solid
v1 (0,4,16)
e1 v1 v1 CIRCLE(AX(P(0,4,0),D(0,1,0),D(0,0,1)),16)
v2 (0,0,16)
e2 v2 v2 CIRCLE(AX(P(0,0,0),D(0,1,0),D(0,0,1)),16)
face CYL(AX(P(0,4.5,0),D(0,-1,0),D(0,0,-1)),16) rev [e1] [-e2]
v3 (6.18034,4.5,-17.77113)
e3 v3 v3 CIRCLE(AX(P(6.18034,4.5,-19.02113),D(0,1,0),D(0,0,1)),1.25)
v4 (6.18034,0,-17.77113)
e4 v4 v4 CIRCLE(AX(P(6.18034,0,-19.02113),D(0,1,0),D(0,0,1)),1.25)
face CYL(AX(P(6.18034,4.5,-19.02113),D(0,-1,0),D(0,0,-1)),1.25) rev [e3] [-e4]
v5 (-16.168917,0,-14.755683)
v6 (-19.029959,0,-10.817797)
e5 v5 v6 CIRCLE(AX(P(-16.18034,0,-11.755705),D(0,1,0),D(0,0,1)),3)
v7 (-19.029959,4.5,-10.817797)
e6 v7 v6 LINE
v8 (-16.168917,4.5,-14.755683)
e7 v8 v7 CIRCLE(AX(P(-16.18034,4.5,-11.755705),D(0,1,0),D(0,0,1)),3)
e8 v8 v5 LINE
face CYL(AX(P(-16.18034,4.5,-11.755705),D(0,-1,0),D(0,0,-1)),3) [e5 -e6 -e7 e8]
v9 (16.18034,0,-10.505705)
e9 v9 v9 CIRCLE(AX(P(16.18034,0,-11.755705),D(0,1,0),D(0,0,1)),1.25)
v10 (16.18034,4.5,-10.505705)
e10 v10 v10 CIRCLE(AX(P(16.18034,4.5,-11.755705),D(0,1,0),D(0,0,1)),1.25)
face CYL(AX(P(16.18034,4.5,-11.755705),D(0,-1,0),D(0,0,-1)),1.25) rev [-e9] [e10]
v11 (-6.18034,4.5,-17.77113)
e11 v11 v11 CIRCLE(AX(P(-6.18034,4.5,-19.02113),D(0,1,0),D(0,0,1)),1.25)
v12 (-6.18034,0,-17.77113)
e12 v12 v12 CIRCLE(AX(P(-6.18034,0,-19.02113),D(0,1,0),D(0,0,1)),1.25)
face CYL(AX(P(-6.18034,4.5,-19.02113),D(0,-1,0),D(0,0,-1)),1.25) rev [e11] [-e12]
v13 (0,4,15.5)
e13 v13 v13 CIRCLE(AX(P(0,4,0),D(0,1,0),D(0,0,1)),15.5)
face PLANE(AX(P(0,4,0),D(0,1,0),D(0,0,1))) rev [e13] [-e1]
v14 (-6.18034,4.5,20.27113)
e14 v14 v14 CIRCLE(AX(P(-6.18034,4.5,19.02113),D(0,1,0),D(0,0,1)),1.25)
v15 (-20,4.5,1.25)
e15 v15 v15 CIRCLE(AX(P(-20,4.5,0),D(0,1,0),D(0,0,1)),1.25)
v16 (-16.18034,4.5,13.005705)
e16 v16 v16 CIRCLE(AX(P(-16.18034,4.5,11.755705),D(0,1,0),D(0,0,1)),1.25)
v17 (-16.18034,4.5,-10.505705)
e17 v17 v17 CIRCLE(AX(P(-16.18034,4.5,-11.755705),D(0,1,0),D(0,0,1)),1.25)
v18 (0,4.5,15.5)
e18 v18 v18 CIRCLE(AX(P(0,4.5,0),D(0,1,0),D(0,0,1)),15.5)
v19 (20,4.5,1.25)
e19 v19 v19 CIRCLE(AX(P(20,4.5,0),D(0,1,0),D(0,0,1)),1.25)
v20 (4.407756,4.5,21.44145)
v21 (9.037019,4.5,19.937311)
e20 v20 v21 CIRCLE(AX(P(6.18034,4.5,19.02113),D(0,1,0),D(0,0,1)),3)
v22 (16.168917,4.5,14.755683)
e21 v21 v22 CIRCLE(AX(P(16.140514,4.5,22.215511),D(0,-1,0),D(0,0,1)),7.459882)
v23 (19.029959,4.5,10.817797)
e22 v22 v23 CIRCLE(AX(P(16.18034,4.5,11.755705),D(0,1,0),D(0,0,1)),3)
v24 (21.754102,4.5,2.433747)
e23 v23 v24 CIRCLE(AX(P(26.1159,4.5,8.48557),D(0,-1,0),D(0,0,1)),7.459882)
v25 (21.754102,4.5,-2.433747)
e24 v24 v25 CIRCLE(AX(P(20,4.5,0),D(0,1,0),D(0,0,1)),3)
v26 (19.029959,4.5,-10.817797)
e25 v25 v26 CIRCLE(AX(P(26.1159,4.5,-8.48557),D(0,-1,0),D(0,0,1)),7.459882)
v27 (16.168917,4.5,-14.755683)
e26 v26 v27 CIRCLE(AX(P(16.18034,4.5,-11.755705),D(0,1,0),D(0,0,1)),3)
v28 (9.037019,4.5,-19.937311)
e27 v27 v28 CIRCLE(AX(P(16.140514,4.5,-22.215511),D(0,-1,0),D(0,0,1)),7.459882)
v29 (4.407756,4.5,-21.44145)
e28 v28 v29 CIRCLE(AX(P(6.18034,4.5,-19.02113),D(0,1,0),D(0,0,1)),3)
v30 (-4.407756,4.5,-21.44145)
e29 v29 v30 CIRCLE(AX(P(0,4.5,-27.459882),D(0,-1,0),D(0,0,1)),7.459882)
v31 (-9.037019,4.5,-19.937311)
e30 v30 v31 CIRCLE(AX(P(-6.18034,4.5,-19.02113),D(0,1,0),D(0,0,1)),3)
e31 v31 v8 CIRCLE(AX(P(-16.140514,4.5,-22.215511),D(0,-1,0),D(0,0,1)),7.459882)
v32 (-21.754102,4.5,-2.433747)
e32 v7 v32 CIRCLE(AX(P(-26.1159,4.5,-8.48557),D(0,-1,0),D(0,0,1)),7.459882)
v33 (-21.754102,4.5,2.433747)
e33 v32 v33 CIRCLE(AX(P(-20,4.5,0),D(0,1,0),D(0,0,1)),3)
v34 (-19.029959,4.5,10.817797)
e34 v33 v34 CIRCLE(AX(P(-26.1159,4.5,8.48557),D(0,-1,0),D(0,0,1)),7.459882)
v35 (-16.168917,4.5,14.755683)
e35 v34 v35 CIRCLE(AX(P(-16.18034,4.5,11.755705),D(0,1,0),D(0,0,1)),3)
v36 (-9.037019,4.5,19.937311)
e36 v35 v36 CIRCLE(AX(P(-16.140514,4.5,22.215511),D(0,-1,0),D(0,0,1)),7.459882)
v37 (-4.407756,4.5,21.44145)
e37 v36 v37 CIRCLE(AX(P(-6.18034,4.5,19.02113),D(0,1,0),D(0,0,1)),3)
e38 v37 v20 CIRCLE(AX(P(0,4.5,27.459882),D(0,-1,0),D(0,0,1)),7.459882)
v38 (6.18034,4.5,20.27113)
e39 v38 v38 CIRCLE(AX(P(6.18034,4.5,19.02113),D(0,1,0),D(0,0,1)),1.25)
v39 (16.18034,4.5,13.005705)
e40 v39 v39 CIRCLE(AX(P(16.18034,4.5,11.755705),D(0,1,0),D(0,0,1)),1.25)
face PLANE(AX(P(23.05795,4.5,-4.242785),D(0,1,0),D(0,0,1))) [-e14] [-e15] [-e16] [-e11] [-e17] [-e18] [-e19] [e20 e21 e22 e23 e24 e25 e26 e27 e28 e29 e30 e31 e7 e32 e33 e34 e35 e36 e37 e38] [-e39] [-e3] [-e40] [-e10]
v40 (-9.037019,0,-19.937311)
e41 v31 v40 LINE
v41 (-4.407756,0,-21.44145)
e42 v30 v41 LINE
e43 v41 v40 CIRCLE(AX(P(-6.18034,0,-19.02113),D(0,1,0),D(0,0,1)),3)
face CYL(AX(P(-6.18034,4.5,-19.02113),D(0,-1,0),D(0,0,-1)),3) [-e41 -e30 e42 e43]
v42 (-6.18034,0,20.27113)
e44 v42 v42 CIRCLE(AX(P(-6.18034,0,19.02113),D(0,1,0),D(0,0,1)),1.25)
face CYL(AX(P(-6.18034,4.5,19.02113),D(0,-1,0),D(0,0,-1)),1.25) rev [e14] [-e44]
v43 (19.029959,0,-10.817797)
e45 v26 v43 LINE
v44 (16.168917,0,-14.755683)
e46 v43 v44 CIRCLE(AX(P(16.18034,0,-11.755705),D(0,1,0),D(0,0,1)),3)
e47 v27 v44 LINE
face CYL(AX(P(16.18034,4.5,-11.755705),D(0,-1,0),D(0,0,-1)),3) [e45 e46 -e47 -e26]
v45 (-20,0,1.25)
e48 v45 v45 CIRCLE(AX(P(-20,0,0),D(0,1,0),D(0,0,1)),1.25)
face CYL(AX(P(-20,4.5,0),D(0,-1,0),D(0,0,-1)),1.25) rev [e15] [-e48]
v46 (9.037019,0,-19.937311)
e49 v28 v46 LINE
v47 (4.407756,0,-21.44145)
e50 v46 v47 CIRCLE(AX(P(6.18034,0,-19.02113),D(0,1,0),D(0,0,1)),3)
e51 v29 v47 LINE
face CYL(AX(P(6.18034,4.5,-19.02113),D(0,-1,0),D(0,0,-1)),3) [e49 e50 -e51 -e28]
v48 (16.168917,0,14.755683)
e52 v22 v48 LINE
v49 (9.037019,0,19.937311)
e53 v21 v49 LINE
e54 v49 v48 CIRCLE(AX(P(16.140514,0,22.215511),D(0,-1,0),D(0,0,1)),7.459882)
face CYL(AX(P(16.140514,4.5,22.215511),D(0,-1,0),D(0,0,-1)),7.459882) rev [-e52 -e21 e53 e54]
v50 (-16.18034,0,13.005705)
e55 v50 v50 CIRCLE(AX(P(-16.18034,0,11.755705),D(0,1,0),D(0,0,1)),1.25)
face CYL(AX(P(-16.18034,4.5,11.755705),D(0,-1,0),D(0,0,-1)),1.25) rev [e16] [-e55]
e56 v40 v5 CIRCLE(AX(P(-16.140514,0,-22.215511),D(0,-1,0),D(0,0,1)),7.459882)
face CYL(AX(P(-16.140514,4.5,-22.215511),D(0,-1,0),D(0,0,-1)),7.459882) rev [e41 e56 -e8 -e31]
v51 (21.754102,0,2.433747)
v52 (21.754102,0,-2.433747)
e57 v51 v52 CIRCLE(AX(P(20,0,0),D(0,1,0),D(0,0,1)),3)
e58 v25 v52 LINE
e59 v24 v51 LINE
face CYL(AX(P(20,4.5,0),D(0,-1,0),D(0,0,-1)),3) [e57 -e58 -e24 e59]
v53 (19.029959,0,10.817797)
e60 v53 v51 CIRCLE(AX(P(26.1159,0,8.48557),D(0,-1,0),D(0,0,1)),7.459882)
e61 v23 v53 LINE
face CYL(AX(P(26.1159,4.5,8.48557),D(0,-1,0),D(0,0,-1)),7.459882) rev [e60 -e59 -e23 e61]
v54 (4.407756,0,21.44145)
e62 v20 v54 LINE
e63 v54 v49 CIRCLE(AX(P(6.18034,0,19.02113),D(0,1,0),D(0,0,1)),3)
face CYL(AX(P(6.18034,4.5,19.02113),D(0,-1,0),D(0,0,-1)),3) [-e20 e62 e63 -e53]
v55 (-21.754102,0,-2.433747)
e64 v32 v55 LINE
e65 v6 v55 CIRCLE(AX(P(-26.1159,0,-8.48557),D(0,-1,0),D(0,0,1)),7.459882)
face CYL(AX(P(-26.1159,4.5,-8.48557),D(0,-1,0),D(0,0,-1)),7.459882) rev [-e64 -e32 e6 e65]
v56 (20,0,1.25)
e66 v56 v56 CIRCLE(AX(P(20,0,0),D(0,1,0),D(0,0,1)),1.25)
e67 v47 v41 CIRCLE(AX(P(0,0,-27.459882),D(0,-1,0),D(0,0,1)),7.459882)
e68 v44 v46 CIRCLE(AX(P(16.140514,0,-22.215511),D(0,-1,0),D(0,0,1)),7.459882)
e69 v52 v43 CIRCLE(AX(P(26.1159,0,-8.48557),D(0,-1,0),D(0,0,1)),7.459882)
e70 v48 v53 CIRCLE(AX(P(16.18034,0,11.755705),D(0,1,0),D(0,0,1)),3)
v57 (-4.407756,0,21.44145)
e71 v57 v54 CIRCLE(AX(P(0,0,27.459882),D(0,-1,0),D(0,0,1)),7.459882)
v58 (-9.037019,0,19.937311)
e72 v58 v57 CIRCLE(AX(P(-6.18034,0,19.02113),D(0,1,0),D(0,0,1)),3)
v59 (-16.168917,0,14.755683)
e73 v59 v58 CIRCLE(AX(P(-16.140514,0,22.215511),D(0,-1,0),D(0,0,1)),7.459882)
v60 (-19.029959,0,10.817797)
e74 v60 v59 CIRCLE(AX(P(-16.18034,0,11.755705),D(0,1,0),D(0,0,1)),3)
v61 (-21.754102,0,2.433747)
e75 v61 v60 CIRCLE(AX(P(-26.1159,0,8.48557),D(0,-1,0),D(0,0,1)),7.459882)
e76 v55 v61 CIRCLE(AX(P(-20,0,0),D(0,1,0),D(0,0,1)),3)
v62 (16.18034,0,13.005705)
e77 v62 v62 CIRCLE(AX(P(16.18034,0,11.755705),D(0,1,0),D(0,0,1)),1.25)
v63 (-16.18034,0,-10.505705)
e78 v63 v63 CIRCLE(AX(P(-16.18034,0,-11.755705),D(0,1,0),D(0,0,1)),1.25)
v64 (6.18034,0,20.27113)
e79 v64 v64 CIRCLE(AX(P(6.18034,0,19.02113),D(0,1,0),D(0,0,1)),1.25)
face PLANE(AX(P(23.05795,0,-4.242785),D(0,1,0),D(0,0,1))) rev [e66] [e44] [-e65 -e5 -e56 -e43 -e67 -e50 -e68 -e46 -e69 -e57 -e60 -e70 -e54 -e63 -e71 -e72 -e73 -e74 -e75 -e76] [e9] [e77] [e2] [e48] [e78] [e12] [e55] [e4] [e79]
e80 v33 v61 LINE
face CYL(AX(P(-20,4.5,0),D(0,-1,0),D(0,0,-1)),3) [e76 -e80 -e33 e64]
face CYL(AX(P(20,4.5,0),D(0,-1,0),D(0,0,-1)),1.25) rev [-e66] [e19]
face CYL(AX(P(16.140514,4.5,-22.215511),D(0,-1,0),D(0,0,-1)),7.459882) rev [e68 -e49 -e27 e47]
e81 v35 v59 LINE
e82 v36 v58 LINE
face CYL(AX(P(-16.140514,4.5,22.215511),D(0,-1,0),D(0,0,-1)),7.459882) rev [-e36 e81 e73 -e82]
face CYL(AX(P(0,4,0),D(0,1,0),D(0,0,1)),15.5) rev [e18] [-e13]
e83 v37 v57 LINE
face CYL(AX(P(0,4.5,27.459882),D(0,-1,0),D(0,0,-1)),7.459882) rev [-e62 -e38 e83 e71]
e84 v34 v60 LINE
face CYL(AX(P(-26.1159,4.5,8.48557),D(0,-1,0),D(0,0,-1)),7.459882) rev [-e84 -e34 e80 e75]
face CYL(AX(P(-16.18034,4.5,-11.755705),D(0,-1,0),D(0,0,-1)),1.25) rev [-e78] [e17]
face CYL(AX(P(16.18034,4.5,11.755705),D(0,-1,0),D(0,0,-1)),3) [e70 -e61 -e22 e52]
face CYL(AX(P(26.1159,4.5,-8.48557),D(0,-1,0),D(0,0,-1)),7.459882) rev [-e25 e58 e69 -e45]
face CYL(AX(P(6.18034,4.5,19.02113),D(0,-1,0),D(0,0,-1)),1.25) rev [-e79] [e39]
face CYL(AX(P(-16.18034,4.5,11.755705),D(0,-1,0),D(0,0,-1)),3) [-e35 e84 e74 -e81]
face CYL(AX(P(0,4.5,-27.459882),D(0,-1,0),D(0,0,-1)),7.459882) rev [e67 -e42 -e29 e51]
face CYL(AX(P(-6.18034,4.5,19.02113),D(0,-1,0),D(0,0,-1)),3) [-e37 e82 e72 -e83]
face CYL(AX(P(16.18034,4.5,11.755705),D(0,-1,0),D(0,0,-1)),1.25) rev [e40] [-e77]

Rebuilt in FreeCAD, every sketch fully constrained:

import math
import FreeCAD as App
import Part
import Sketcher
Q = App.Units.Quantity

doc = App.newDocument("Part")
body = doc.addObject("PartDesign::Body", "Body")

sketch1 = doc.addObject("Sketcher::SketchObject", "Sketch")
body.addObject(sketch1)
sketch1.AttachmentSupport = (doc.XZ_Plane, [""])
sketch1.MapMode = "FlatFace"
sketch1.addGeometry(Part.ArcOfCircle(Part.Circle(App.Vector(20, 0, 0), App.Vector(0, 0, 1), 3), math.radians(-54.218156), math.radians(54.218156)), False)
sketch1.addGeometry(Part.ArcOfCircle(Part.Circle(App.Vector(26.1159, -8.48557, 0), App.Vector(0, 0, 1), 7.459882), math.radians(125.781844), math.radians(198.218156)), False)
sketch1.addGeometry(Part.ArcOfCircle(Part.Circle(App.Vector(16.18034, -11.755705, 0), App.Vector(0, 0, 1), 3), math.radians(-90.218156), math.radians(18.218156)), False)
sketch1.addGeometry(Part.ArcOfCircle(Part.Circle(App.Vector(16.140514, -22.215511, 0), App.Vector(0, 0, 1), 7.459882), math.radians(89.781844), math.radians(162.218156)), False)
sketch1.addGeometry(Part.ArcOfCircle(Part.Circle(App.Vector(6.18034, -19.02113, 0), App.Vector(0, 0, 1), 3), math.radians(-126.218156), math.radians(-17.781844)), False)
sketch1.addGeometry(Part.ArcOfCircle(Part.Circle(App.Vector(0, -27.459882, 0), App.Vector(0, 0, 1), 7.459882), math.radians(53.781844), math.radians(126.218156)), False)
sketch1.addGeometry(Part.ArcOfCircle(Part.Circle(App.Vector(-6.18034, -19.02113, 0), App.Vector(0, 0, 1), 3), math.radians(-162.218156), math.radians(-53.781844)), False)
sketch1.addGeometry(Part.ArcOfCircle(Part.Circle(App.Vector(-16.140514, -22.215511, 0), App.Vector(0, 0, 1), 7.459882), math.radians(17.781844), math.radians(90.218156)), False)
sketch1.addGeometry(Part.ArcOfCircle(Part.Circle(App.Vector(-16.18034, -11.755705, 0), App.Vector(0, 0, 1), 3), math.radians(161.781844), math.radians(270.218156)), False)
sketch1.addGeometry(Part.ArcOfCircle(Part.Circle(App.Vector(-26.1159, -8.48557, 0), App.Vector(0, 0, 1), 7.459882), math.radians(-18.218156), math.radians(54.218156)), False)
sketch1.addGeometry(Part.ArcOfCircle(Part.Circle(App.Vector(-20, 0, 0), App.Vector(0, 0, 1), 3), math.radians(125.781844), math.radians(234.218156)), False)
sketch1.addGeometry(Part.ArcOfCircle(Part.Circle(App.Vector(-26.1159, 8.48557, 0), App.Vector(0, 0, 1), 7.459882), math.radians(-54.218156), math.radians(18.218156)), False)
sketch1.addGeometry(Part.ArcOfCircle(Part.Circle(App.Vector(-16.18034, 11.755705, 0), App.Vector(0, 0, 1), 3), math.radians(89.781844), math.radians(198.218156)), False)
sketch1.addGeometry(Part.ArcOfCircle(Part.Circle(App.Vector(-16.140514, 22.215511, 0), App.Vector(0, 0, 1), 7.459882), math.radians(-90.218156), math.radians(-17.781844)), False)
sketch1.addGeometry(Part.ArcOfCircle(Part.Circle(App.Vector(-6.18034, 19.02113, 0), App.Vector(0, 0, 1), 3), math.radians(53.781844), math.radians(162.218156)), False)
sketch1.addGeometry(Part.ArcOfCircle(Part.Circle(App.Vector(0, 27.459882, 0), App.Vector(0, 0, 1), 7.459882), math.radians(-126.218156), math.radians(-53.781844)), False)
sketch1.addGeometry(Part.ArcOfCircle(Part.Circle(App.Vector(6.18034, 19.02113, 0), App.Vector(0, 0, 1), 3), math.radians(17.781844), math.radians(126.218156)), False)
sketch1.addGeometry(Part.ArcOfCircle(Part.Circle(App.Vector(16.140514, 22.215511, 0), App.Vector(0, 0, 1), 7.459882), math.radians(-162.218156), math.radians(-89.781844)), False)
sketch1.addGeometry(Part.ArcOfCircle(Part.Circle(App.Vector(16.18034, 11.755705, 0), App.Vector(0, 0, 1), 3), math.radians(-18.218156), math.radians(90.218156)), False)
sketch1.addGeometry(Part.ArcOfCircle(Part.Circle(App.Vector(26.1159, 8.48557, 0), App.Vector(0, 0, 1), 7.459882), math.radians(161.781844), math.radians(234.218156)), False)
sketch1.addGeometry(Part.Circle(App.Vector(-16.18034, 11.755705, 0), App.Vector(0, 0, 1), 1.25), False)
sketch1.addGeometry(Part.Circle(App.Vector(-6.18034, 19.02113, 0), App.Vector(0, 0, 1), 1.25), False)
sketch1.addGeometry(Part.Circle(App.Vector(6.18034, 19.02113, 0), App.Vector(0, 0, 1), 1.25), False)
sketch1.addGeometry(Part.Circle(App.Vector(16.18034, 11.755705, 0), App.Vector(0, 0, 1), 1.25), False)
sketch1.addGeometry(Part.Circle(App.Vector(-20, 0, 0), App.Vector(0, 0, 1), 1.25), False)
sketch1.addGeometry(Part.Circle(App.Vector(-16.18034, -11.755705, 0), App.Vector(0, 0, 1), 1.25), False)
sketch1.addGeometry(Part.Circle(App.Vector(-6.18034, -19.02113, 0), App.Vector(0, 0, 1), 1.25), False)
sketch1.addGeometry(Part.Circle(App.Vector(0, 0, 0), App.Vector(0, 0, 1), 16), False)
sketch1.addGeometry(Part.Circle(App.Vector(20, 0, 0), App.Vector(0, 0, 1), 1.25), False)
sketch1.addGeometry(Part.Circle(App.Vector(6.18034, -19.02113, 0), App.Vector(0, 0, 1), 1.25), False)
sketch1.addGeometry(Part.Circle(App.Vector(16.18034, -11.755705, 0), App.Vector(0, 0, 1), 1.25), False)
sketch1.addConstraint(Sketcher.Constraint("Tangent", 0, 1, 1, 1))
sketch1.addConstraint(Sketcher.Constraint("Tangent", 1, 2, 2, 2))
sketch1.addConstraint(Sketcher.Constraint("Tangent", 2, 1, 3, 1))
sketch1.addConstraint(Sketcher.Constraint("Tangent", 3, 2, 4, 2))
sketch1.addConstraint(Sketcher.Constraint("Tangent", 4, 1, 5, 1))
sketch1.addConstraint(Sketcher.Constraint("Tangent", 5, 2, 6, 2))
sketch1.addConstraint(Sketcher.Constraint("Tangent", 6, 1, 7, 1))
sketch1.addConstraint(Sketcher.Constraint("Tangent", 7, 2, 8, 2))
sketch1.addConstraint(Sketcher.Constraint("Tangent", 8, 1, 9, 1))
sketch1.addConstraint(Sketcher.Constraint("Tangent", 9, 2, 10, 2))
sketch1.addConstraint(Sketcher.Constraint("Tangent", 10, 1, 11, 1))
sketch1.addConstraint(Sketcher.Constraint("Tangent", 11, 2, 12, 2))
sketch1.addConstraint(Sketcher.Constraint("Tangent", 12, 1, 13, 1))
sketch1.addConstraint(Sketcher.Constraint("Tangent", 13, 2, 14, 2))
sketch1.addConstraint(Sketcher.Constraint("Tangent", 14, 1, 15, 1))
sketch1.addConstraint(Sketcher.Constraint("Tangent", 15, 2, 16, 2))
sketch1.addConstraint(Sketcher.Constraint("Tangent", 16, 1, 17, 1))
sketch1.addConstraint(Sketcher.Constraint("Tangent", 17, 2, 18, 2))
sketch1.addConstraint(Sketcher.Constraint("Tangent", 18, 1, 19, 1))
sketch1.addConstraint(Sketcher.Constraint("Tangent", 19, 2, 0, 2))
sketch1.addConstraint(Sketcher.Constraint("Coincident", 27, 3, -1, 1))
sketch1.addConstraint(Sketcher.Constraint("Coincident", 20, 3, 12, 3))
sketch1.addConstraint(Sketcher.Constraint("Coincident", 21, 3, 14, 3))
sketch1.addConstraint(Sketcher.Constraint("Coincident", 22, 3, 16, 3))
sketch1.addConstraint(Sketcher.Constraint("Coincident", 23, 3, 18, 3))
sketch1.addConstraint(Sketcher.Constraint("Coincident", 24, 3, 10, 3))
sketch1.addConstraint(Sketcher.Constraint("Coincident", 25, 3, 8, 3))
sketch1.addConstraint(Sketcher.Constraint("Coincident", 26, 3, 6, 3))
sketch1.addConstraint(Sketcher.Constraint("Coincident", 28, 3, 0, 3))
sketch1.addConstraint(Sketcher.Constraint("Coincident", 29, 3, 4, 3))
sketch1.addConstraint(Sketcher.Constraint("Coincident", 30, 3, 2, 3))
sketch1.addConstraint(Sketcher.Constraint("Equal", 0, 2))
sketch1.addConstraint(Sketcher.Constraint("Equal", 1, 3))
sketch1.addConstraint(Sketcher.Constraint("Equal", 2, 4))
sketch1.addConstraint(Sketcher.Constraint("Equal", 3, 5))
sketch1.addConstraint(Sketcher.Constraint("Equal", 4, 6))
sketch1.addConstraint(Sketcher.Constraint("Equal", 5, 7))
sketch1.addConstraint(Sketcher.Constraint("Equal", 6, 8))
sketch1.addConstraint(Sketcher.Constraint("Equal", 7, 9))
sketch1.addConstraint(Sketcher.Constraint("Equal", 8, 10))
sketch1.addConstraint(Sketcher.Constraint("Equal", 9, 11))
sketch1.addConstraint(Sketcher.Constraint("Equal", 10, 12))
sketch1.addConstraint(Sketcher.Constraint("Equal", 11, 13))
sketch1.addConstraint(Sketcher.Constraint("Equal", 12, 14))
sketch1.addConstraint(Sketcher.Constraint("Equal", 13, 15))
sketch1.addConstraint(Sketcher.Constraint("Equal", 14, 16))
sketch1.addConstraint(Sketcher.Constraint("Equal", 15, 17))
sketch1.addConstraint(Sketcher.Constraint("Equal", 16, 18))
sketch1.addConstraint(Sketcher.Constraint("Equal", 17, 19))
sketch1.addConstraint(Sketcher.Constraint("Equal", 20, 21))
sketch1.addConstraint(Sketcher.Constraint("Equal", 21, 22))
sketch1.addConstraint(Sketcher.Constraint("Equal", 22, 23))
sketch1.addConstraint(Sketcher.Constraint("Equal", 23, 24))
sketch1.addConstraint(Sketcher.Constraint("Equal", 24, 25))
sketch1.addConstraint(Sketcher.Constraint("Equal", 25, 26))
sketch1.addConstraint(Sketcher.Constraint("Equal", 26, 28))
sketch1.addConstraint(Sketcher.Constraint("Equal", 28, 29))
sketch1.addConstraint(Sketcher.Constraint("Equal", 29, 30))
sketch1.addConstraint(Sketcher.Constraint("Symmetric", 0, 3, 10, 3, -1, 1))
sketch1.addConstraint(Sketcher.Constraint("Symmetric", 2, 3, 12, 3, -1, 1))
sketch1.addConstraint(Sketcher.Constraint("Symmetric", 4, 3, 14, 3, -1, 1))
sketch1.addConstraint(Sketcher.Constraint("Symmetric", 6, 3, 16, 3, -1, 1))
sketch1.addConstraint(Sketcher.Constraint("Symmetric", 8, 3, 18, 3, -1, 1))
sketch1.addConstraint(Sketcher.Constraint("Symmetric", 4, 3, 6, 3, -2))
sketch1.addConstraint(Sketcher.Constraint("Symmetric", 2, 3, 8, 3, -2))
sketch1.addConstraint(Sketcher.Constraint("PointOnObject", 0, 3, -1))
sketch1.addConstraint(Sketcher.Constraint("Diameter", 27, Q("32 mm")))
sketch1.addConstraint(Sketcher.Constraint("Radius", 0, Q("3 mm")))
sketch1.addConstraint(Sketcher.Constraint("Diameter", 20, Q("2.5 mm")))
sketch1.addConstraint(Sketcher.Constraint("DistanceX", -1, 1, 0, 3, Q("20 mm")))
sketch1.addConstraint(Sketcher.Constraint("DistanceX", 4, 3, 2, 3, Q("10 mm")))
sketch1.addConstraint(Sketcher.Constraint("Radius", 1, Q("7.459882 mm")))
sketch1.addConstraint(Sketcher.Constraint("DistanceX", -1, 1, 1, 3, Q("26.1159 mm")))
sketch1.addConstraint(Sketcher.Constraint("DistanceY", 6, 3, 11, 3, Q("27.5067 mm")))
sketch1.addConstraint(Sketcher.Constraint("DistanceY", 3, 3, 3, 2, Q("2.2782 mm")))
pad1 = doc.addObject("PartDesign::Pad", "Pad")
body.addObject(pad1)
pad1.Profile = sketch1
pad1.Length = 4.5
pad1.Reversed = True

sketch2 = doc.addObject("Sketcher::SketchObject", "Sketch001")
body.addObject(sketch2)
sketch2.AttachmentSupport = (doc.XZ_Plane, [""])
sketch2.MapMode = "FlatFace"
sketch2.AttachmentOffset = App.Placement(App.Vector(0, 0, -4.5), App.Rotation())
sketch2.addGeometry(Part.Circle(App.Vector(0, 0, 0), App.Vector(0, 0, 1), 16), False)
sketch2.addGeometry(Part.Circle(App.Vector(0, 0, 0), App.Vector(0, 0, 1), 15.5), False)
sketch2.addConstraint(Sketcher.Constraint("Coincident", 0, 3, -1, 1))
sketch2.addConstraint(Sketcher.Constraint("Coincident", 1, 3, -1, 1))
sketch2.addConstraint(Sketcher.Constraint("Diameter", 0, Q("32 mm")))
sketch2.addConstraint(Sketcher.Constraint("Diameter", 1, Q("31 mm")))
pad2 = doc.addObject("PartDesign::Pad", "Pad001")
body.addObject(pad2)
pad2.Profile = sketch2
pad2.Length = 0.5

doc.recompute()
